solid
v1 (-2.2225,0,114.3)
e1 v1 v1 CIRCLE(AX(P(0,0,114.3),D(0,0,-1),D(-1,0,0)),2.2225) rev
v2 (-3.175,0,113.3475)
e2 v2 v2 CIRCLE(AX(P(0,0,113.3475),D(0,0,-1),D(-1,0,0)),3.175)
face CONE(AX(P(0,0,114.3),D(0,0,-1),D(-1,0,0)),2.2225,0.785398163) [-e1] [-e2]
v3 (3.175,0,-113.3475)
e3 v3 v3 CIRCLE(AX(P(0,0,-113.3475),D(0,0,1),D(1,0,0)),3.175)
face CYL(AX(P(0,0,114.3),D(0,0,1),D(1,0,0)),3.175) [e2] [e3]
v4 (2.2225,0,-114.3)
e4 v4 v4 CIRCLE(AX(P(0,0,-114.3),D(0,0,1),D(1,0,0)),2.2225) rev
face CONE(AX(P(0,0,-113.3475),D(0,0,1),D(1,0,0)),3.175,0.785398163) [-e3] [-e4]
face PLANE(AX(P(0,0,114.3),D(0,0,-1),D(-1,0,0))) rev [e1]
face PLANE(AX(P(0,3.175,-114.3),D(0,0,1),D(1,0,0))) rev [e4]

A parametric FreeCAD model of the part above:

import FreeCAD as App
import Part
import Sketcher

V = App.Vector
Q = App.Units.Quantity


def edges_at(feature, points):
    """Names of the edges that pass closest to the given points."""
    edges = feature.Shape.Edges
    near = lambda p: min(range(len(edges)), key=lambda i: edges[i].distToShape(Part.Vertex(*p))[0])
    return sorted({f"Edge{near(p) + 1}" for p in points})


def add_polygon(sketch, points):
    """Adds a closed chain of lines whose ends are joined by coincident constraints."""
    first, n = sketch.GeometryCount, len(points)
    for a, b in zip(points, points[1:] + points[:1]):
        sketch.addGeometry(Part.LineSegment(App.Vector(*a, 0), App.Vector(*b, 0)), False)
    for i in range(n):
        sketch.addConstraint(Sketcher.Constraint("Coincident", first + i, 2, first + (i + 1) % n, 1))

doc = App.newDocument("Part")
body = doc.addObject("PartDesign::Body", "Body")

sketch1 = body.newObject("Sketcher::SketchObject", "Sketch")
sketch1.AttachmentSupport = (doc.getObject("YZ_Plane"), [""])
sketch1.MapMode = "FlatFace"
add_polygon(sketch1, [(3.2, 114.3), (0, 114.3), (0, -114.3), (3.2, -114.3)])
sketch1.addConstraint(Sketcher.Constraint("Horizontal", 0))
sketch1.addConstraint(Sketcher.Constraint("Vertical", 1))
sketch1.addConstraint(Sketcher.Constraint("Horizontal", 2))
sketch1.addConstraint(Sketcher.Constraint("Vertical", 3))
sketch1.addConstraint(Sketcher.Constraint("Symmetric", 0, 2, 1, 2, -1, 1))
sketch1.addConstraint(Sketcher.Constraint("DistanceY", 1, 2, 1, 1, Q("9 in")))
sketch1.addConstraint(Sketcher.Constraint("DistanceX", 0, 2, 0, 1, Q("0.125 in")))
revolution = body.newObject("PartDesign::Revolution", "Revolution")
revolution.Profile = sketch1
revolution.ReferenceAxis = (sketch1, ["V_Axis"])
revolution.Angle = 360
doc.recompute()

chamfer = body.newObject("PartDesign::Chamfer", "Chamfer")
chamfer.Base = (revolution, edges_at(revolution, [(0, -3.175, 114.3), (0, -3.175, -114.3)]))
chamfer.Size = Q("0.0375 in")

doc.recompute()
